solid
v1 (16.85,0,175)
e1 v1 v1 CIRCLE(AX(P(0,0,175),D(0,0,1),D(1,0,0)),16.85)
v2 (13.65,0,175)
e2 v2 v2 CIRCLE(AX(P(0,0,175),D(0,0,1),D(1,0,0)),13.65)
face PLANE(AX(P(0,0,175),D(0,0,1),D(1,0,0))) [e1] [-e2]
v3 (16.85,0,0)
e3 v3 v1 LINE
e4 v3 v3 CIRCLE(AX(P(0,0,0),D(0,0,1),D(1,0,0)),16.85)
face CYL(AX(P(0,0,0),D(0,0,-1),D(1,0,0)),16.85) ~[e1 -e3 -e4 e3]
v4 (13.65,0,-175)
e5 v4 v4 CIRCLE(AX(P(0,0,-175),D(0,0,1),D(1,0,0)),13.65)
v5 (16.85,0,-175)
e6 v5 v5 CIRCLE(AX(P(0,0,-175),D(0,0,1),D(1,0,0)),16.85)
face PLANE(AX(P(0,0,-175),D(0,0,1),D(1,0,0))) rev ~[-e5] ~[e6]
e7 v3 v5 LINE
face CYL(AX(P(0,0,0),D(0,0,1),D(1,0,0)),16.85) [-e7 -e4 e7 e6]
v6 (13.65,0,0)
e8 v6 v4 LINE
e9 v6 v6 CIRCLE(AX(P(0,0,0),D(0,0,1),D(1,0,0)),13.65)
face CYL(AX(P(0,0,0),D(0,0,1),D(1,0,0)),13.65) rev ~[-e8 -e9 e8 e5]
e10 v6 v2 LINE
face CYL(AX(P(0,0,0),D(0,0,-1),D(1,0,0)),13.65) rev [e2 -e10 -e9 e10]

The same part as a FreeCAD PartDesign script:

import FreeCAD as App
import Part
import Sketcher
from FreeCAD import Vector
Q = App.Units.Quantity

doc = App.newDocument("Part")
body = doc.addObject("PartDesign::Body", "Body")

# Sketch on XY plane
sketch1 = body.newObject("Sketcher::SketchObject", "Sketch")
sketch1.AttachmentSupport = (doc.getObject("XY_Plane"), [""])
sketch1.MapMode = "FlatFace"
sketch1.addGeometry(Part.Circle(Vector(0, 0, 0), Vector(0, 0, 1), 17), False)
sketch1.addGeometry(Part.Circle(Vector(0, 0, 0), Vector(0, 0, 1), 14), False)
sketch1.addConstraint(Sketcher.Constraint("Coincident", 0, 3, -1, 1))
sketch1.addConstraint(Sketcher.Constraint("Coincident", 1, 3, -1, 1))
sketch1.addConstraint(Sketcher.Constraint("Diameter", 0, Q("33.7 mm")))
sketch1.addConstraint(Sketcher.Constraint("Diameter", 1, Q("27.3 mm")))
pad1 = body.newObject("PartDesign::Pad", "Pad")
pad1.Profile = sketch1
pad1.Length = 350
pad1.Midplane = True

doc.recompute()
